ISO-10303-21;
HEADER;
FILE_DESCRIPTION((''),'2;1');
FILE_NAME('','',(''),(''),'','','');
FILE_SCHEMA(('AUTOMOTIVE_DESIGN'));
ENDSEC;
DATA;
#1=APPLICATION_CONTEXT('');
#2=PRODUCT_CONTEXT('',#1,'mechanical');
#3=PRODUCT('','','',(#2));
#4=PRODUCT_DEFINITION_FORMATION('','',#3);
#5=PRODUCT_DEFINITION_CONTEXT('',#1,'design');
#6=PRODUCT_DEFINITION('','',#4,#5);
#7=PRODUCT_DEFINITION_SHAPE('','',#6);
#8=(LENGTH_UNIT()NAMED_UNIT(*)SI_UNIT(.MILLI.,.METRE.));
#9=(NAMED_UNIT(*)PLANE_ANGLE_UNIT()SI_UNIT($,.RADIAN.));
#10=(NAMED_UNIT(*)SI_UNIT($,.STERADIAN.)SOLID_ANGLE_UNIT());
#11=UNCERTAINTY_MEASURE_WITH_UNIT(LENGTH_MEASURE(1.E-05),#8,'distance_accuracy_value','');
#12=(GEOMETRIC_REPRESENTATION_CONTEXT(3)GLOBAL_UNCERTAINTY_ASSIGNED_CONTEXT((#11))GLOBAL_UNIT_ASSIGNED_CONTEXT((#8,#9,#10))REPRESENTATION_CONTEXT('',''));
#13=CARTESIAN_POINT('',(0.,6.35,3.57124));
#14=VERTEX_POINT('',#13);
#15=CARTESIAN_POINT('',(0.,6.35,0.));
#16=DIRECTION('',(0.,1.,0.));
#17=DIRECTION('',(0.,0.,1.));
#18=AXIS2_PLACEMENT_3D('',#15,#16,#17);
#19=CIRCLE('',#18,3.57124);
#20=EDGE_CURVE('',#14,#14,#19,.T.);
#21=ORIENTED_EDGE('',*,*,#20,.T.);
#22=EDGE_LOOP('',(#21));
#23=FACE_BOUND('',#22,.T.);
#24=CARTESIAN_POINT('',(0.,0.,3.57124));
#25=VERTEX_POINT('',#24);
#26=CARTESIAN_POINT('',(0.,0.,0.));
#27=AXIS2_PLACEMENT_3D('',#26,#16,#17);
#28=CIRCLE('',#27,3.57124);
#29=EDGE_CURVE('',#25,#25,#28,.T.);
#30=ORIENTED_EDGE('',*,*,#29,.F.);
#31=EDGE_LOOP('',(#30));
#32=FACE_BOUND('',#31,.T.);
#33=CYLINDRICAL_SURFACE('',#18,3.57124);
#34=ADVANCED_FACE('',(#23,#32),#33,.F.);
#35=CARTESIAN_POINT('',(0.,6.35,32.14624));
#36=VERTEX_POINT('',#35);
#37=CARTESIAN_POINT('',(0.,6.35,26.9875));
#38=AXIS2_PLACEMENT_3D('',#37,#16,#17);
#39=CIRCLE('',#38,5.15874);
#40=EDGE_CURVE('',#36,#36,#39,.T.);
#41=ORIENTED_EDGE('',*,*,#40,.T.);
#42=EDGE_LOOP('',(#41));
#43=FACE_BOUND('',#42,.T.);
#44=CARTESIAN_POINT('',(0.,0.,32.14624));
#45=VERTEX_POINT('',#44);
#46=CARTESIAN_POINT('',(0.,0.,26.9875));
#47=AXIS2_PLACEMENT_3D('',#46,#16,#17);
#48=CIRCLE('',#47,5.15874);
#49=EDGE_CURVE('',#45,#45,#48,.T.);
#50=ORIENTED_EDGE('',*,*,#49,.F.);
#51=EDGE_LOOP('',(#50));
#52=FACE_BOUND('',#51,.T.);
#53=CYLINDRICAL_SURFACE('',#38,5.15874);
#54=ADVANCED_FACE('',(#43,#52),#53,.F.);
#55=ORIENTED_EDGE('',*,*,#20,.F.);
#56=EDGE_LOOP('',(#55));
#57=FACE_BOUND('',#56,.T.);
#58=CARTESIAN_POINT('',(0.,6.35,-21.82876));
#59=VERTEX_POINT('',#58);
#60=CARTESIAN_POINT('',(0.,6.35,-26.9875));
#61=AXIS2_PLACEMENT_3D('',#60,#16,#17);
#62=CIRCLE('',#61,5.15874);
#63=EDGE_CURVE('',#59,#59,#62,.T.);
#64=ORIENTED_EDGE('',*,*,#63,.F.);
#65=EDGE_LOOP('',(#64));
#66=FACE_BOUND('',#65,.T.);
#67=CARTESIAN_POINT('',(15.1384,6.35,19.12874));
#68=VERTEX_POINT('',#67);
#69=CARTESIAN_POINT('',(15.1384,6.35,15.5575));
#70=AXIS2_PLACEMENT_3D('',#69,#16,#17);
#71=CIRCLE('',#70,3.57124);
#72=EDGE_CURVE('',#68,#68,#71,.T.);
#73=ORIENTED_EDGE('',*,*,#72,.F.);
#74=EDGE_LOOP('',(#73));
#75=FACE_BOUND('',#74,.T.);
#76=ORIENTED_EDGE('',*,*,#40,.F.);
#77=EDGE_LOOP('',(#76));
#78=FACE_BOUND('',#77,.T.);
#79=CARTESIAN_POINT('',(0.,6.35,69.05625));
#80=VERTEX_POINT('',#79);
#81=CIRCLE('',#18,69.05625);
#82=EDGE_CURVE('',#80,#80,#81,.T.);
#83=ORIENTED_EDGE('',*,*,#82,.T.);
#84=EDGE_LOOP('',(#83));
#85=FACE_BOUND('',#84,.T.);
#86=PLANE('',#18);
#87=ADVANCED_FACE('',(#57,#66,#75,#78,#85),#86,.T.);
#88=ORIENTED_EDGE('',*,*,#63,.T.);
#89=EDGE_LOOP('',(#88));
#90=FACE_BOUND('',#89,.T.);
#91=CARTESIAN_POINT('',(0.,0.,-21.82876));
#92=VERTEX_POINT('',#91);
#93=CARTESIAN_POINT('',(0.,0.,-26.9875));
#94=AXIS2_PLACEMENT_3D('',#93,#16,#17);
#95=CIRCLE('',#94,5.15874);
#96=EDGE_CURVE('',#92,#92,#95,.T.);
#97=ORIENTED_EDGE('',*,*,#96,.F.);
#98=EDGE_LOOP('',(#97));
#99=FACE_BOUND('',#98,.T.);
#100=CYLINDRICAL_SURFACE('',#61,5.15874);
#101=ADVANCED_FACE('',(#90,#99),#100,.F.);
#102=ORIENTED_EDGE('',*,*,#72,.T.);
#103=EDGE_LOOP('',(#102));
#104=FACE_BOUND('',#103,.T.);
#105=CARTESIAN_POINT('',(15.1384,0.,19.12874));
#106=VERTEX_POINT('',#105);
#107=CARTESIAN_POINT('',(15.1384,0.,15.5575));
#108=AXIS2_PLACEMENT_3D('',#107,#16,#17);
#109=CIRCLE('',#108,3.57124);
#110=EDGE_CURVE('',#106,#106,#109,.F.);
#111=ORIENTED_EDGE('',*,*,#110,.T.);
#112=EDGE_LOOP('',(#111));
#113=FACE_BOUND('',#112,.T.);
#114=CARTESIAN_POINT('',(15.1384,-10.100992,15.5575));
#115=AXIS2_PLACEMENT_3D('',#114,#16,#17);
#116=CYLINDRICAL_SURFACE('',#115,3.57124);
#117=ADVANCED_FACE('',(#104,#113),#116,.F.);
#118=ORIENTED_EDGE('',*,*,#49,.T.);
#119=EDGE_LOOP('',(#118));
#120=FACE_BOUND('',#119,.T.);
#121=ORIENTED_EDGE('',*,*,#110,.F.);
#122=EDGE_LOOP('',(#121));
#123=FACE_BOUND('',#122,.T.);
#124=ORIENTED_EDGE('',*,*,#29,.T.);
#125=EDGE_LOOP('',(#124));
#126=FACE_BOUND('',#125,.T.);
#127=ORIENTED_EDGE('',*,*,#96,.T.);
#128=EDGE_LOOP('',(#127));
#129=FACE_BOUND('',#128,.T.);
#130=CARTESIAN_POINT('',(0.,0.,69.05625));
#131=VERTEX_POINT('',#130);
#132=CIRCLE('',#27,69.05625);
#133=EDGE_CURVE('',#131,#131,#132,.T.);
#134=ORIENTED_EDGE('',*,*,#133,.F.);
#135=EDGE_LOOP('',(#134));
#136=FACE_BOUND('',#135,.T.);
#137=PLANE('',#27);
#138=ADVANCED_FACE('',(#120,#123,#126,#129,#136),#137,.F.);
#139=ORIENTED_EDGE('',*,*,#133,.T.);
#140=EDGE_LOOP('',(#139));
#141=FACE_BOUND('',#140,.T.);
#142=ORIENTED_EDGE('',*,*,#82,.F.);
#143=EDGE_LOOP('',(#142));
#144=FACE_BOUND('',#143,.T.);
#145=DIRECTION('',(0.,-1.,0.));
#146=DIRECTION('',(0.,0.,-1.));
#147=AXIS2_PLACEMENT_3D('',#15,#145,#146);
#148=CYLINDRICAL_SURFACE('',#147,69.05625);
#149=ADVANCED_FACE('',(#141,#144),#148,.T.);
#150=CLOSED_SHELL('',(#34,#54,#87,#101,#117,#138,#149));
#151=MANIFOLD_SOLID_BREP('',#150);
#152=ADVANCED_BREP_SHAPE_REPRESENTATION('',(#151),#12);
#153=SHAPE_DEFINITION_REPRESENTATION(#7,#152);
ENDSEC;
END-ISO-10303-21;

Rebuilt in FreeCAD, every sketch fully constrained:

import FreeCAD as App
import Part
import Sketcher

V = App.Vector
Q = App.Units.Quantity

doc = App.newDocument("Part")
body = doc.addObject("PartDesign::Body", "Body")

# Sketch on XZ plane
sketch1 = doc.addObject("Sketcher::SketchObject", "Sketch")
body.addObject(sketch1)
sketch1.AttachmentSupport = (doc.XZ_Plane, [""])
sketch1.MapMode = "FlatFace"
sketch1.addGeometry(Part.Circle(V(0, 0, 0), V(0, 0, 1), 69.05625), False)
sketch1.addConstraint([
    Sketcher.Constraint("Coincident", 0, 3, -1, 1),
    Sketcher.Constraint("Diameter", 0, Q("5.4375 in")),
])
pad1 = doc.addObject("PartDesign::Pad", "Pad")
body.addObject(pad1)
pad1.Profile = sketch1
pad1.Length = Q("0.25 in")
pad1.Reversed = True

# Sketch on XZ plane
sketch2 = doc.addObject("Sketcher::SketchObject", "Sketch001")
body.addObject(sketch2)
sketch2.AttachmentSupport = (doc.XZ_Plane, [""])
sketch2.MapMode = "FlatFace"
sketch2.AttachmentOffset = App.Placement(V(0, 0, -0.25 * 25.4), App.Rotation())
sketch2.addGeometry(Part.Circle(V(0, 0, 0), V(0, 0, 1), 3.57124), False)
sketch2.addConstraint([
    Sketcher.Constraint("Coincident", 0, 3, -1, 1),
    Sketcher.Constraint("Diameter", 0, Q("0.2812 in")),
])
doc.recompute()
hole = doc.addObject("PartDesign::Hole", "Hole")
body.addObject(hole)
hole.Profile = sketch2
hole.ThreadType = "None"
hole.Diameter = Q("0.2812 in")
hole.DepthType = "ThroughAll"
hole.Reversed = True

# Sketch on XZ plane
sketch3 = doc.addObject("Sketcher::SketchObject", "Sketch002")
body.addObject(sketch3)
sketch3.AttachmentSupport = (doc.XZ_Plane, [""])
sketch3.MapMode = "FlatFace"
sketch3.AttachmentOffset = App.Placement(V(0, 0, -0.25 * 25.4), App.Rotation())
sketch3.addGeometry([
    Part.Circle(V(0, -26.9875, 0), V(0, 0, 1), 5.15874),
    Part.Circle(V(0, 26.9875, 0), V(0, 0, 1), 5.15874),
], False)
sketch3.addConstraint([
    Sketcher.Constraint("Equal", 0, 1),
    Sketcher.Constraint("Symmetric", 0, 3, 1, 3, -1, 1),
    Sketcher.Constraint("PointOnObject", 0, 3, -2),
    Sketcher.Constraint("Diameter", 0, Q("0.4062 in")),
    Sketcher.Constraint("DistanceY", 0, 3, -1, 1, Q("1.0625 in")),
])
doc.recompute()
hole2 = doc.addObject("PartDesign::Hole", "Hole001")
body.addObject(hole2)
hole2.Profile = sketch3
hole2.ThreadType = "None"
hole2.Diameter = Q("0.4062 in")
hole2.DepthType = "ThroughAll"
hole2.Reversed = True

# Sketch on XZ plane
sketch4 = doc.addObject("Sketcher::SketchObject", "Sketch003")
body.addObject(sketch4)
sketch4.AttachmentSupport = (doc.XZ_Plane, [""])
sketch4.MapMode = "FlatFace"
sketch4.AttachmentOffset = App.Placement(V(0, 0, -0.25 * 25.4), App.Rotation())
sketch4.addGeometry(Part.Circle(V(15.1384, 15.5575, 0), V(0, 0, 1), 3.57124), False)
sketch4.addConstraint([
    Sketcher.Constraint("Diameter", 0, Q("0.2812 in")),
    Sketcher.Constraint("DistanceX", -1, 1, 0, 3, Q("0.596 in")),
    Sketcher.Constraint("DistanceY", -1, 1, 0, 3, Q("0.6125 in")),
])
pocket1 = doc.addObject("PartDesign::Pocket", "Pocket")
body.addObject(pocket1)
pocket1.Profile = sketch4
pocket1.Length = Q("0.25 in")
pocket1.Reversed = True

doc.recompute()
